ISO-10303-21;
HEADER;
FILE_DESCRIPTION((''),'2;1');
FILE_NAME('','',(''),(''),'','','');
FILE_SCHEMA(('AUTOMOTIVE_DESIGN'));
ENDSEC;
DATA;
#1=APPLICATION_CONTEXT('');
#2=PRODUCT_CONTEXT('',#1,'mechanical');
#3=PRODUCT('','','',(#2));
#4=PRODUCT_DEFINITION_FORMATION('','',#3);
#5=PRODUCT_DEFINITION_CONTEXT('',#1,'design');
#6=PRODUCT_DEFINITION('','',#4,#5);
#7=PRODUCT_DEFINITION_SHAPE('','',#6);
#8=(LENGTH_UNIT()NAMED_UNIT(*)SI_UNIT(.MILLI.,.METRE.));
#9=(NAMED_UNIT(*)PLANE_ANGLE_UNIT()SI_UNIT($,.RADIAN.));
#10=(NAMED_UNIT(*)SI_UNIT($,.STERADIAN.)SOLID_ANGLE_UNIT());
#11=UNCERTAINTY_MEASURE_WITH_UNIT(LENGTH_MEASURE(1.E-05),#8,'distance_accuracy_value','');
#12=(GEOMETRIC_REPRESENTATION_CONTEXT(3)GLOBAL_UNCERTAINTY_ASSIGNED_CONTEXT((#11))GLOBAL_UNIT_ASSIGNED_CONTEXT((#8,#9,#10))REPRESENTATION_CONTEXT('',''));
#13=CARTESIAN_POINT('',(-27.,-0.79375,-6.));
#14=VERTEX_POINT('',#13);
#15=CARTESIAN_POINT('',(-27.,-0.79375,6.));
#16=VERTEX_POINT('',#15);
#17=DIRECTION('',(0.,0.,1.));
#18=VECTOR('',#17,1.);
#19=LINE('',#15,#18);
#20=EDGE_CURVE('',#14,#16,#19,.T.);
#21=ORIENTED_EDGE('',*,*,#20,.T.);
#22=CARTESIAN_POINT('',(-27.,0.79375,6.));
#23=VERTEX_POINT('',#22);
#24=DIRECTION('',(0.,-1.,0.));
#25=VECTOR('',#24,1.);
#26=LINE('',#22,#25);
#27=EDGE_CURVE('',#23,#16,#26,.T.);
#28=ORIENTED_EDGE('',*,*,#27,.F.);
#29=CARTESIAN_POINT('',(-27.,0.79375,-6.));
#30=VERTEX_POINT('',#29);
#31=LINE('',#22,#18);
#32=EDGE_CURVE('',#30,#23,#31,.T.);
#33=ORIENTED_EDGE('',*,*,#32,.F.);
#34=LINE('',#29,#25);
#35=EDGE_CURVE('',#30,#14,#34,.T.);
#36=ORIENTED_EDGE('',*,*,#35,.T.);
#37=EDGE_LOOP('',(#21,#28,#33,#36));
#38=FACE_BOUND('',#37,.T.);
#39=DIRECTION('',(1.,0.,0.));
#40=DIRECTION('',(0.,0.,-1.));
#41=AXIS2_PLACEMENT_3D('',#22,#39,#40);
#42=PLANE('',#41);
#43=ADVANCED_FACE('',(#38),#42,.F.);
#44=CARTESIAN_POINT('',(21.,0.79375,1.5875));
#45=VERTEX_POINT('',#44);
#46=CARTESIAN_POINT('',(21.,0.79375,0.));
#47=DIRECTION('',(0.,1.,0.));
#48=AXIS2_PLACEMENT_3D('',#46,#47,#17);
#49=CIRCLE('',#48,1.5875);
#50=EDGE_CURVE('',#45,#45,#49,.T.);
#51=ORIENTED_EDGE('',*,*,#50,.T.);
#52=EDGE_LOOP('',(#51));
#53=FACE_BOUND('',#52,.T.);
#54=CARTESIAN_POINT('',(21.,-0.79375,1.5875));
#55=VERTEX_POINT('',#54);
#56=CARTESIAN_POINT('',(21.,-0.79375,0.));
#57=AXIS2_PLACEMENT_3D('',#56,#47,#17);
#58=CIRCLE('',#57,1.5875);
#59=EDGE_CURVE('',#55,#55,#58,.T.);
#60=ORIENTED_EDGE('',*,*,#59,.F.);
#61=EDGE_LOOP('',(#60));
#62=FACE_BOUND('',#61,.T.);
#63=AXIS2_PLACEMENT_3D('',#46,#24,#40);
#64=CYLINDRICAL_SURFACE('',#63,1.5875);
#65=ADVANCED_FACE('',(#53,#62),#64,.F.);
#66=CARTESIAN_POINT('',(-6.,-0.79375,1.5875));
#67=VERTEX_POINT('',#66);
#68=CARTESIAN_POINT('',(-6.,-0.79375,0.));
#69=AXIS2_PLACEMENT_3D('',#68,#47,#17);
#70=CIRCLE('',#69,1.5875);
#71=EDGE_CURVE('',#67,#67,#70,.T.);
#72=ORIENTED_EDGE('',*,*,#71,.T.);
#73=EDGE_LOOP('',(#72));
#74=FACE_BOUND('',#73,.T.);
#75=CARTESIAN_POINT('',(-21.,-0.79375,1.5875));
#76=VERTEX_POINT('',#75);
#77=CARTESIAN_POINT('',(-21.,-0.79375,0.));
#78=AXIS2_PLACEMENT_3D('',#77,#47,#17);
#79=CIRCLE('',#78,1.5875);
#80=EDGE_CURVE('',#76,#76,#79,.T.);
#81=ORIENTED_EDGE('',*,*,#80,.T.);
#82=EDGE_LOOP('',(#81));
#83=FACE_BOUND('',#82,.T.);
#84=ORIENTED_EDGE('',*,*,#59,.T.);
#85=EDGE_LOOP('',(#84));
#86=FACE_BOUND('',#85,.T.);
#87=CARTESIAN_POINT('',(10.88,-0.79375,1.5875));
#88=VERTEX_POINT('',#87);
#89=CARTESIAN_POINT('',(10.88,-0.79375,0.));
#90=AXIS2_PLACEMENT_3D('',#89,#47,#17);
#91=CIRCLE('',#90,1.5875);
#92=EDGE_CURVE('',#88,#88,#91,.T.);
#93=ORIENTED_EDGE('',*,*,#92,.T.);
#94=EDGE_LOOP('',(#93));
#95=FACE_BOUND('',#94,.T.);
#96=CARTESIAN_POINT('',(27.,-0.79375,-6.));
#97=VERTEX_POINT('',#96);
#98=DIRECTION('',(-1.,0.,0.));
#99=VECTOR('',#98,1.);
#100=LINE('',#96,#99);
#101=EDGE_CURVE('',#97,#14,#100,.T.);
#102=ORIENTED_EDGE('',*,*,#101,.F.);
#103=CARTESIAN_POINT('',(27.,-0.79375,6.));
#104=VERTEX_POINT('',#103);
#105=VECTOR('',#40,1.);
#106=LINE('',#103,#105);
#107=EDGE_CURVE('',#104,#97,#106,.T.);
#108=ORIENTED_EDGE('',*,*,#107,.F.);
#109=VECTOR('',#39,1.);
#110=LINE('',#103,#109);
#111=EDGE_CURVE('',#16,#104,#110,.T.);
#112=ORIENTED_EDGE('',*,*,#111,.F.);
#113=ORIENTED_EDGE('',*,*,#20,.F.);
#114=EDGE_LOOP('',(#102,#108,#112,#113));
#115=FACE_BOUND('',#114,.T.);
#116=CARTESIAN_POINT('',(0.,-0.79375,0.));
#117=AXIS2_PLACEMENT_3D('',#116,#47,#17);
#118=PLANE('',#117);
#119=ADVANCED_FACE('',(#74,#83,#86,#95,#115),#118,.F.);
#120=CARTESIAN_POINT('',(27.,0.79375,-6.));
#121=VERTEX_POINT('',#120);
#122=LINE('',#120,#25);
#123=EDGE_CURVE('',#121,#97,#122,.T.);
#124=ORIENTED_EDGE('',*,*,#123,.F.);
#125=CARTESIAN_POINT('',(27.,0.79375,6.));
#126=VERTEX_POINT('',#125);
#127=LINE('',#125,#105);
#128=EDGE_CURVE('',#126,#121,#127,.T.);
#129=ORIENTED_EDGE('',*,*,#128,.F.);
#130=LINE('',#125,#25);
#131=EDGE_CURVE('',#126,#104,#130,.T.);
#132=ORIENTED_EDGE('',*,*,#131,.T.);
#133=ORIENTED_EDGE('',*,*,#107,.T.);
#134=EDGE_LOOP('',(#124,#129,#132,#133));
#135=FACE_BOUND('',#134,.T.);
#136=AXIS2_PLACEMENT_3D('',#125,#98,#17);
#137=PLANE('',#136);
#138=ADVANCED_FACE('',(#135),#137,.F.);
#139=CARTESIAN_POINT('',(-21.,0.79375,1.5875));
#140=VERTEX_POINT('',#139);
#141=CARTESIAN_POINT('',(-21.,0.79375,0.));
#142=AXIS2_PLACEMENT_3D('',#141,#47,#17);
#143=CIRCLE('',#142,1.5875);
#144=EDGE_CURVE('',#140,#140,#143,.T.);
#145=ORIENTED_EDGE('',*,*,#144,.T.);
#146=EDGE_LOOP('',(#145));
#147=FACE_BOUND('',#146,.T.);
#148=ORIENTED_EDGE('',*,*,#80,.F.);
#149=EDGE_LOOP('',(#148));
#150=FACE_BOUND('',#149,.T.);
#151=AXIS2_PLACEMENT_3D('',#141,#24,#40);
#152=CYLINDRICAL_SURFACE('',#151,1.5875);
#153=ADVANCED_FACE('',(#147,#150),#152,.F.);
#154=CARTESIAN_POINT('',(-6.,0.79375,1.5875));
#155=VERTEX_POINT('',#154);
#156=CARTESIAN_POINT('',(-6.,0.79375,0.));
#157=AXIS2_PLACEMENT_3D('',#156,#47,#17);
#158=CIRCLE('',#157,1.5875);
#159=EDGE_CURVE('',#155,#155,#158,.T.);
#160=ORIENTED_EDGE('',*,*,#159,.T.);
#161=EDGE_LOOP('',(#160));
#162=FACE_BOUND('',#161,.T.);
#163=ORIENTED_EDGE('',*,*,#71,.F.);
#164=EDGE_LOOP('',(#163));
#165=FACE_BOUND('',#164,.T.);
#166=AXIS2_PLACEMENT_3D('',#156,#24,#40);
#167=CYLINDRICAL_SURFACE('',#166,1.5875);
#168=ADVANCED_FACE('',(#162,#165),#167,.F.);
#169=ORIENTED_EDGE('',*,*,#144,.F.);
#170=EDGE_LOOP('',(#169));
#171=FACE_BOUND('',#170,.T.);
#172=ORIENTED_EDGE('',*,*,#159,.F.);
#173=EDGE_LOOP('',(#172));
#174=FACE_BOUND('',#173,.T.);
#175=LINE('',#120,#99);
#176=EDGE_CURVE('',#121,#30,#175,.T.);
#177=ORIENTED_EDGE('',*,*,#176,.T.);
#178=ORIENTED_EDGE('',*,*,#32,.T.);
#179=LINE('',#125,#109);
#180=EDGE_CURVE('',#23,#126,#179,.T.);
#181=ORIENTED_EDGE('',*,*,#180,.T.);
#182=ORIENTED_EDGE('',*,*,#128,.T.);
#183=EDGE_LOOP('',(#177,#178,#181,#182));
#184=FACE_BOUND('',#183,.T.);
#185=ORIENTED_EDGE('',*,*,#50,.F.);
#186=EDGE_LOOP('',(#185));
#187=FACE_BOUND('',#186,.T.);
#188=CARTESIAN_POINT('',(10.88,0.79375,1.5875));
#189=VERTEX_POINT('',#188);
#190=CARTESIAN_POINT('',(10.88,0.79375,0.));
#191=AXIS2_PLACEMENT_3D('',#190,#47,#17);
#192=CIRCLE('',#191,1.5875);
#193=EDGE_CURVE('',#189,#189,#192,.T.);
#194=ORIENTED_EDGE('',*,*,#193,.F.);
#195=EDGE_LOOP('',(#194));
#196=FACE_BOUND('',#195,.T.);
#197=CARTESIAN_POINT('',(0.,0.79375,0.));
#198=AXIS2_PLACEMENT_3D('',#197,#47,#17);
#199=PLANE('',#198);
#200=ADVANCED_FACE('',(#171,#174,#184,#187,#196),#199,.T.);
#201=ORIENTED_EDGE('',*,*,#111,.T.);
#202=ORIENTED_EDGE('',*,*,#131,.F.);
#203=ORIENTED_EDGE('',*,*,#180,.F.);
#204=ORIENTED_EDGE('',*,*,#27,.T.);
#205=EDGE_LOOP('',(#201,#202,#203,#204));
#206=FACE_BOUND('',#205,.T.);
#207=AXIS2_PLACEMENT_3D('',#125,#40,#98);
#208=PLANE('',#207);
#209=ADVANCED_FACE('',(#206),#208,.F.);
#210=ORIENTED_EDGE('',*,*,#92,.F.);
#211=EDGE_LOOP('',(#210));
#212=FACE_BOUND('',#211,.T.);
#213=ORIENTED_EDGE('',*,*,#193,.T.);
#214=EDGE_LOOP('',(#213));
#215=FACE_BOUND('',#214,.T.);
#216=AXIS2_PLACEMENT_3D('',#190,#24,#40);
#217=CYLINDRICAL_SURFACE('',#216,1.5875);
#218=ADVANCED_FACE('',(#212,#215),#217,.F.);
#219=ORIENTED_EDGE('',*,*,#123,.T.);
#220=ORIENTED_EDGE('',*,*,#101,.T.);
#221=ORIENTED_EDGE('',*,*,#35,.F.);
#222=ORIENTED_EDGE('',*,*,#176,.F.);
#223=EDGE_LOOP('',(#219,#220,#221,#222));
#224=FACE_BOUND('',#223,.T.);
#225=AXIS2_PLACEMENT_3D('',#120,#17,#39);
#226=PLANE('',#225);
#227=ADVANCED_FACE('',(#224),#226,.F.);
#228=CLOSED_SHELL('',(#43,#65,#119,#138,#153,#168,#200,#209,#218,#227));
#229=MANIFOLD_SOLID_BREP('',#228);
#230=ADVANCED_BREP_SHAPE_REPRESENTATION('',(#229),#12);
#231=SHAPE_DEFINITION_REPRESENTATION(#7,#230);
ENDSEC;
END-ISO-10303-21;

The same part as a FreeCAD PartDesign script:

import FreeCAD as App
import Part
import Sketcher
from FreeCAD import Vector

doc = App.newDocument("Part")
params = doc.addObject("Spreadsheet::Sheet", "Params")
for row, (alias, value) in enumerate([
    ("sketch1_width", "54 mm"),
    ("sketch1_height", "12 mm"),
    ("pad1_length", "1.5875 mm"),
], start=1):
    params.set(f"A{row}", alias)
    params.set(f"B{row}", "=" + value)
    params.setAlias(f"B{row}", alias)

body = doc.addObject("PartDesign::Body", "Body")

# Sketch on XZ plane
sketch1 = body.newObject("Sketcher::SketchObject", "Sketch")
sketch1.AttachmentSupport = (doc.getObject("XZ_Plane"), [""])
sketch1.MapMode = "FlatFace"
sketch1.addGeometry(Part.LineSegment(Vector(-27, -6, 0), Vector(-27, 6, 0)), False)
sketch1.addGeometry(Part.LineSegment(Vector(-27, 6, 0), Vector(27, 6, 0)), False)
sketch1.addGeometry(Part.LineSegment(Vector(27, 6, 0), Vector(27, -6, 0)), False)
sketch1.addGeometry(Part.LineSegment(Vector(27, -6, 0), Vector(-27, -6, 0)), False)
sketch1.addGeometry(Part.Circle(Vector(-21, 0, 0), Vector(0, 0, 1), 1.6), False)
sketch1.addGeometry(Part.Circle(Vector(-6, 0, 0), Vector(0, 0, 1), 1.6), False)
sketch1.addGeometry(Part.Circle(Vector(10.9, 0, 0), Vector(0, 0, 1), 1.6), False)
sketch1.addGeometry(Part.Circle(Vector(21, 0, 0), Vector(0, 0, 1), 1.6), False)
sketch1.addConstraint(Sketcher.Constraint("Coincident", 0, 2, 1, 1))
sketch1.addConstraint(Sketcher.Constraint("Coincident", 1, 2, 2, 1))
sketch1.addConstraint(Sketcher.Constraint("Coincident", 2, 2, 3, 1))
sketch1.addConstraint(Sketcher.Constraint("Coincident", 3, 2, 0, 1))
sketch1.addConstraint(Sketcher.Constraint("Vertical", 0))
sketch1.addConstraint(Sketcher.Constraint("Horizontal", 1))
sketch1.addConstraint(Sketcher.Constraint("Vertical", 2))
sketch1.addConstraint(Sketcher.Constraint("Horizontal", 3))
sketch1.addConstraint(Sketcher.Constraint("Equal", 4, 5))
sketch1.addConstraint(Sketcher.Constraint("Equal", 5, 6))
sketch1.addConstraint(Sketcher.Constraint("Equal", 6, 7))
sketch1.addConstraint(Sketcher.Constraint("Symmetric", 4, 3, 7, 3, -1, 1))
sketch1.addConstraint(Sketcher.Constraint("Symmetric", 0, 2, 2, 2, -1, 1))
sketch1.addConstraint(Sketcher.Constraint("PointOnObject", 4, 3, -1))
sketch1.addConstraint(Sketcher.Constraint("PointOnObject", 5, 3, -1))
sketch1.addConstraint(Sketcher.Constraint("PointOnObject", 6, 3, -1))
sketch1.addConstraint(Sketcher.Constraint("DistanceX", 1, 1, 1, 2, 54.0))
sketch1.addConstraint(Sketcher.Constraint("DistanceY", 0, 1, 0, 2, 12.0))
sketch1.addConstraint(Sketcher.Constraint("Diameter", 4, 3.175))
sketch1.addConstraint(Sketcher.Constraint("DistanceX", 4, 3, -1, 1, 21.0))
sketch1.addConstraint(Sketcher.Constraint("DistanceX", 5, 3, -1, 1, 6.0))
sketch1.addConstraint(Sketcher.Constraint("DistanceX", -1, 1, 6, 3, 10.88))
sketch1.setExpression("Constraints[16]", "Params.sketch1_width")
sketch1.setExpression("Constraints[17]", "Params.sketch1_height")
pad1 = body.newObject("PartDesign::Pad", "Pad")
pad1.Profile = sketch1
pad1.setExpression("Length", "Params.pad1_length")
pad1.Midplane = True

doc.recompute()
